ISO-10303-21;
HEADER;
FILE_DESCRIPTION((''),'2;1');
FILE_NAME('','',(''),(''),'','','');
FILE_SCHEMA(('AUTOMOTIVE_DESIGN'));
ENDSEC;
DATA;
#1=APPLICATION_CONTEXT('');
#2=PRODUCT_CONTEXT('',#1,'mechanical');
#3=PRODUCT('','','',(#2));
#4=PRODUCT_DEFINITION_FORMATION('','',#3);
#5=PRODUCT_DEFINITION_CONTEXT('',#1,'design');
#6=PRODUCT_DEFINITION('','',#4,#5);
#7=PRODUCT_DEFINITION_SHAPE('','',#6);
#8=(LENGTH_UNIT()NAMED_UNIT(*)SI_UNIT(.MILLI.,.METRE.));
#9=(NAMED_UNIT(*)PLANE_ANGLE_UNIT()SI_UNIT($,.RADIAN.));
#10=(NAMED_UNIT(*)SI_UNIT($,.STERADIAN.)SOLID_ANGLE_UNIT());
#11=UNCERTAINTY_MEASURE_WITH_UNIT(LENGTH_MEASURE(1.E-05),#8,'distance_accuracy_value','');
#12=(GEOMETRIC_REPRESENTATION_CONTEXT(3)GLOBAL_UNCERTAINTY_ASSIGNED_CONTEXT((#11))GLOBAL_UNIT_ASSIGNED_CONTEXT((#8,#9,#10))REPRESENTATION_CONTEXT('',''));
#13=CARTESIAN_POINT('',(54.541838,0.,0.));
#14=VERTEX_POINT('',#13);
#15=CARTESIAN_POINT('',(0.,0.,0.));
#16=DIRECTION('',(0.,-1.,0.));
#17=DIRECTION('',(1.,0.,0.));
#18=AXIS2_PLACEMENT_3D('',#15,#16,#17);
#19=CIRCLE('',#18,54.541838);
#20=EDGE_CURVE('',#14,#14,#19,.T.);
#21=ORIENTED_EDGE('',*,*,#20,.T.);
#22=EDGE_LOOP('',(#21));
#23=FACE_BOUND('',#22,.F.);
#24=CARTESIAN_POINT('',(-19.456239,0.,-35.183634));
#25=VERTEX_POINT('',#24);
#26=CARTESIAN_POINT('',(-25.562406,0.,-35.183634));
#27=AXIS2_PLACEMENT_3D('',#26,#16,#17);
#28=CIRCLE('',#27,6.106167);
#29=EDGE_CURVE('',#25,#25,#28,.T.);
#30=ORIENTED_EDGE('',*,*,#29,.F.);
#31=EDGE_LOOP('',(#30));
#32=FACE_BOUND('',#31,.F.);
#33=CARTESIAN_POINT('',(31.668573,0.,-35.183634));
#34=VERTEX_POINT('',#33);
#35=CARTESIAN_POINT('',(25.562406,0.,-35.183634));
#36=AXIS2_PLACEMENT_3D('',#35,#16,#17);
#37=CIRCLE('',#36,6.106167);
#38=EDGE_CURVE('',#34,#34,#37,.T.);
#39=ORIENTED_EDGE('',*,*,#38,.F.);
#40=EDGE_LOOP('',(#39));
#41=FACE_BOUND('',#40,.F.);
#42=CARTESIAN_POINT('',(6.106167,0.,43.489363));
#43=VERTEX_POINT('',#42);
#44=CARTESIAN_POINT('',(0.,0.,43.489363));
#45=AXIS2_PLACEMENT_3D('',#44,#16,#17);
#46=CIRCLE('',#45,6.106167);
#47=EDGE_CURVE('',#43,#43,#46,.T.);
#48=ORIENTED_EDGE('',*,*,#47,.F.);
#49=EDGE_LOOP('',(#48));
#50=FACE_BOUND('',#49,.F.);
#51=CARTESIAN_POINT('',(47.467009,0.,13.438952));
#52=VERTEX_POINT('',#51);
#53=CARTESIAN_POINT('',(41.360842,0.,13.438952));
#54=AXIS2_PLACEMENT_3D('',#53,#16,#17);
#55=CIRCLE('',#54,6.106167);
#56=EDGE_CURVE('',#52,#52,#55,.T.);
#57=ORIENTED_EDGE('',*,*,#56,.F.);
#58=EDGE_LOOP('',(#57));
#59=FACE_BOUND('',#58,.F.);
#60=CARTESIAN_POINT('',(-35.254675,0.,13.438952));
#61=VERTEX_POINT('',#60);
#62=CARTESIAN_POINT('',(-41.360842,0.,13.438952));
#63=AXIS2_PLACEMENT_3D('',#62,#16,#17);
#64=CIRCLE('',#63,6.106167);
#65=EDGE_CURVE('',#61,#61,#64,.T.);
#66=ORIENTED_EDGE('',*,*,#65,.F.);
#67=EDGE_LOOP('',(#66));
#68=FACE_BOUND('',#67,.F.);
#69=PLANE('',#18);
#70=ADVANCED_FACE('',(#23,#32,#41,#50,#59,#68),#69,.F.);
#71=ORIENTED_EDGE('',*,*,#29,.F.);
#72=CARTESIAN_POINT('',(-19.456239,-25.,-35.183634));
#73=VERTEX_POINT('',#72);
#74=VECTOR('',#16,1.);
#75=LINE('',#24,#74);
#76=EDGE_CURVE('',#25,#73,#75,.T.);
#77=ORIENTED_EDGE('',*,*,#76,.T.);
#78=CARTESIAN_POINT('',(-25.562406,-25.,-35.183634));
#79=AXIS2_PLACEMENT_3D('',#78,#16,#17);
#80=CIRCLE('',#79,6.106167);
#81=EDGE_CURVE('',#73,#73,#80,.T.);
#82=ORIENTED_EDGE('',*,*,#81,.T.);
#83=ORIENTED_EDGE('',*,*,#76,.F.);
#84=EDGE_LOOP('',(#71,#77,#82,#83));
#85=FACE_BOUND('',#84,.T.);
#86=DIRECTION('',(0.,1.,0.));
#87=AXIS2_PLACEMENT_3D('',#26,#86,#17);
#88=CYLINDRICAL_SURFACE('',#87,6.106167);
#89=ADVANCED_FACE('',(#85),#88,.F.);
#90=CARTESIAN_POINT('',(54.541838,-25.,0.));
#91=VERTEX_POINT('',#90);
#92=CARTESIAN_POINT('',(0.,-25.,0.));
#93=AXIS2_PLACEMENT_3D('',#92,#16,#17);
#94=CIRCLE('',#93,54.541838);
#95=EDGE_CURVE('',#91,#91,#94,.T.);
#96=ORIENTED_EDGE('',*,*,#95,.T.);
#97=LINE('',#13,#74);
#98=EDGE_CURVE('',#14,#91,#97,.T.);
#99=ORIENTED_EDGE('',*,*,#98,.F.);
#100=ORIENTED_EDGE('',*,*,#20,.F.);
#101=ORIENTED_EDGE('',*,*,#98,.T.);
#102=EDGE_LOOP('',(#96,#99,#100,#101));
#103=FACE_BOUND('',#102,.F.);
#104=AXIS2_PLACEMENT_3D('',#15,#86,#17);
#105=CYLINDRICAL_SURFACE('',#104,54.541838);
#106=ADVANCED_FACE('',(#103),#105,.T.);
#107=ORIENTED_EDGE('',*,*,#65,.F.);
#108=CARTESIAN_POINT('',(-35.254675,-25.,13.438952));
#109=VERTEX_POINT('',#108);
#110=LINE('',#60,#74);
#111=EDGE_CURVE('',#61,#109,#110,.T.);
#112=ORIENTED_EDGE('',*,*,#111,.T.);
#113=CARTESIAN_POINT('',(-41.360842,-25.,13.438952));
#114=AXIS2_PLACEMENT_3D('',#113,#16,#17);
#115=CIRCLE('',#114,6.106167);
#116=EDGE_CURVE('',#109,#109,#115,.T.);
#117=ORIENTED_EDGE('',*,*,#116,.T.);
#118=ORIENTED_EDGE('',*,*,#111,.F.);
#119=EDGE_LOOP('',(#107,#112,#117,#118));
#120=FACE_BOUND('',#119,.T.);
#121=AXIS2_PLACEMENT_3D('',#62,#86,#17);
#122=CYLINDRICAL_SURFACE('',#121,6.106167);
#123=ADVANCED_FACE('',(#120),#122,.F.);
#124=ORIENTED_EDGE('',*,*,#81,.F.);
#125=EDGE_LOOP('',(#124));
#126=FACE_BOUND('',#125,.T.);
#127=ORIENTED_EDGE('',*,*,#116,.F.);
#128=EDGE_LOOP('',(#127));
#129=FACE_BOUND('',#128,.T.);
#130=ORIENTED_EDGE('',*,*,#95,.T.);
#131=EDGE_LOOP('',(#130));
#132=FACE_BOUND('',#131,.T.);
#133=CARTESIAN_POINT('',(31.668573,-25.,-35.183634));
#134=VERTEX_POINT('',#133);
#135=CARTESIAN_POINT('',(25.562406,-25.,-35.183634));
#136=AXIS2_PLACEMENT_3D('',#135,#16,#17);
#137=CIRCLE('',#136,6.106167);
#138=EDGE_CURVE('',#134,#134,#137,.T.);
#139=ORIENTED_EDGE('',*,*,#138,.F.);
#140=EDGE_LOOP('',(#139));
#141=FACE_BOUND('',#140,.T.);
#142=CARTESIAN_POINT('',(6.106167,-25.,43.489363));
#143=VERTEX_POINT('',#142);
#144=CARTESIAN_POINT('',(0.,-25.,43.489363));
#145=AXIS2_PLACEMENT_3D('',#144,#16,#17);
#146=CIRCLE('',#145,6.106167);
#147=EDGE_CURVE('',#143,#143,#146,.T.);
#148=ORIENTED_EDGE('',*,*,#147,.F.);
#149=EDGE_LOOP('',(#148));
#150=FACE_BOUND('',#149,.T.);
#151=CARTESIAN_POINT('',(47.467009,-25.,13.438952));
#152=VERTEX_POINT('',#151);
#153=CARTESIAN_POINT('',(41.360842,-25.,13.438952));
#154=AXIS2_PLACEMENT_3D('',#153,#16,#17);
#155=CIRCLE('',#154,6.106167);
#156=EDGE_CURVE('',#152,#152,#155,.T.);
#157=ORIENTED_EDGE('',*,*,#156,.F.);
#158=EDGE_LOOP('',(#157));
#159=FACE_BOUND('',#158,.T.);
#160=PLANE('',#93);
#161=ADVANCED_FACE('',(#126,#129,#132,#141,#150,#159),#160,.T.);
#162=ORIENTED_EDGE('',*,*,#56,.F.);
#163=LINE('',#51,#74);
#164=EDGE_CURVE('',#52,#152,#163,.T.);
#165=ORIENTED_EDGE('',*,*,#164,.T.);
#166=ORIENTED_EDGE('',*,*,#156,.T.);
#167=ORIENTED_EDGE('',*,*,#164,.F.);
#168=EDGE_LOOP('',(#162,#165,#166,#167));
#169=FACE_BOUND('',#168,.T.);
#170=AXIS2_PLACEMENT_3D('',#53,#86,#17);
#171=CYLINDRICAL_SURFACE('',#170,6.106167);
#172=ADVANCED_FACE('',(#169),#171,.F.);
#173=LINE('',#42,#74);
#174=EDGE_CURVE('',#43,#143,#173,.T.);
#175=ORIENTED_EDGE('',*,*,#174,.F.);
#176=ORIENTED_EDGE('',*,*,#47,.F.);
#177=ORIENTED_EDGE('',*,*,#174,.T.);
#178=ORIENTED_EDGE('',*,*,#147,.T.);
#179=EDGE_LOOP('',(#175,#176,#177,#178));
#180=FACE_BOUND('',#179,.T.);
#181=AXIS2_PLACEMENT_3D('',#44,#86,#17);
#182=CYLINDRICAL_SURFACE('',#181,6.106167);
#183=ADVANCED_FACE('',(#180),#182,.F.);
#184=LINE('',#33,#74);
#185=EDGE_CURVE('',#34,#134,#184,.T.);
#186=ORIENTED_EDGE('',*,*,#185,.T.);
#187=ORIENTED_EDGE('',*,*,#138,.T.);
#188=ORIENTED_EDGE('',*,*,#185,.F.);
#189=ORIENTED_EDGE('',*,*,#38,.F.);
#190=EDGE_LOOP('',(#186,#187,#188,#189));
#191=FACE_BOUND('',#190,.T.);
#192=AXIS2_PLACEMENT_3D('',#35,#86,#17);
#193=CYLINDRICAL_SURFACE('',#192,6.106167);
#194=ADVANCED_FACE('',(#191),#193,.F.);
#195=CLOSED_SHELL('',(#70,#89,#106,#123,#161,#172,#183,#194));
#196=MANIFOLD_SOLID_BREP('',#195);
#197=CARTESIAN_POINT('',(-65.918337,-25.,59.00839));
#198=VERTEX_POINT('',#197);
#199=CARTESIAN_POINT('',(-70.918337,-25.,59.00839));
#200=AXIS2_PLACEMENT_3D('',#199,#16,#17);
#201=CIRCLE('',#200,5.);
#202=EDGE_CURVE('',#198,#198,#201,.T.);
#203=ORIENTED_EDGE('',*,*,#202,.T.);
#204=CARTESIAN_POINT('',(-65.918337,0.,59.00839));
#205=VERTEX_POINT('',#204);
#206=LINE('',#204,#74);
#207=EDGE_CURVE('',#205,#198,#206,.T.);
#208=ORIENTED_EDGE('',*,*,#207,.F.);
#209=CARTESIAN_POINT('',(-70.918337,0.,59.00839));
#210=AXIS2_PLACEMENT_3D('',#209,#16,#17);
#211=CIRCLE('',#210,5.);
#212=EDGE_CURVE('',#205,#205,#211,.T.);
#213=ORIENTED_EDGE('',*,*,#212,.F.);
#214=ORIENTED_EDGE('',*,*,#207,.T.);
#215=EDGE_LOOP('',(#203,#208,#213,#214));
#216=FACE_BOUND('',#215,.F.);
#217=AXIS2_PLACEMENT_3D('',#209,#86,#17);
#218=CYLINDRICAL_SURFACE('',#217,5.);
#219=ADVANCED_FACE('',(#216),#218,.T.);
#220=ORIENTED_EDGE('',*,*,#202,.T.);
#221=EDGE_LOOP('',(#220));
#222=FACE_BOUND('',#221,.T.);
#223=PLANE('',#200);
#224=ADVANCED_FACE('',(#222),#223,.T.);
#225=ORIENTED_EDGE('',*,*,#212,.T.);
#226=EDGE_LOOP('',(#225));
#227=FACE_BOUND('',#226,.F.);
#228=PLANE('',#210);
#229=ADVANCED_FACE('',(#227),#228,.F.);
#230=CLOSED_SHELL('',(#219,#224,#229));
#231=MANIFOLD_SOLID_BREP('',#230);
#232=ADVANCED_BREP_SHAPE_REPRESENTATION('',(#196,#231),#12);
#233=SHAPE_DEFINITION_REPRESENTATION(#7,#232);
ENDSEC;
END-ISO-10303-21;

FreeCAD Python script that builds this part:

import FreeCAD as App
import Part
import Sketcher
from FreeCAD import Vector
Q = App.Units.Quantity

doc = App.newDocument("Part")
body = doc.addObject("PartDesign::Body", "Body")

# Sketch on XZ plane
sketch1 = body.newObject("Sketcher::SketchObject", "Sketch")
sketch1.AttachmentSupport = (doc.getObject("XZ_Plane"), [""])
sketch1.MapMode = "FlatFace"
sketch1.addGeometry([
    Part.Circle(Vector(0, 0, 0), Vector(0, 0, 1), 54.541838),  # 0
    Part.Circle(Vector(-25.562406, -35.183634, 0), Vector(0, 0, 1), 6.106167),  # 1
    Part.Circle(Vector(25.562406, -35.183634, 0), Vector(0, 0, 1), 6.106167),  # 2
    Part.Circle(Vector(-41.360842, 13.438952, 0), Vector(0, 0, 1), 6.106167),  # 3
    Part.Circle(Vector(41.360842, 13.438952, 0), Vector(0, 0, 1), 6.106167),  # 4
    Part.Circle(Vector(0, 43.489363, 0), Vector(0, 0, 1), 6.106167),  # 5
], False)
sketch1.addConstraint([
    Sketcher.Constraint("Coincident", 0, 3, -1, 1),
    Sketcher.Constraint("Equal", 1, 2),
    Sketcher.Constraint("Equal", 2, 3),
    Sketcher.Constraint("Equal", 3, 4),
    Sketcher.Constraint("Equal", 4, 5),
    Sketcher.Constraint("Symmetric", 1, 3, 2, 3, -2),
    Sketcher.Constraint("Symmetric", 3, 3, 4, 3, -2),
    Sketcher.Constraint("PointOnObject", 5, 3, -2),
    Sketcher.Constraint("Diameter", 0, Q("109.083676 mm")),
    Sketcher.Constraint("Diameter", 1, Q("12.212334 mm")),
    Sketcher.Constraint("DistanceX", 3, 3, -1, 1, Q("41.360842 mm")),
    Sketcher.Constraint("DistanceX", 3, 3, 2, 3, Q("66.923248 mm")),
    Sketcher.Constraint("DistanceY", 3, 3, 5, 3, Q("30.050411 mm")),
    Sketcher.Constraint("DistanceY", 1, 3, -1, 1, Q("35.183634 mm")),
    Sketcher.Constraint("DistanceY", -1, 1, 3, 3, Q("13.438952 mm")),
])
pad1 = body.newObject("PartDesign::Pad", "Pad")
pad1.Profile = sketch1
pad1.Length = 25
body2 = doc.addObject("PartDesign::Body", "Body001")

# Sketch on XZ plane
sketch2 = body2.newObject("Sketcher::SketchObject", "Sketch001")
sketch2.AttachmentSupport = (doc.getObject("XZ_Plane001"), [""])
sketch2.MapMode = "FlatFace"
sketch2.addGeometry(Part.Circle(Vector(-70.918337, 59.00839, 0), Vector(0, 0, 1), 5), False)
sketch2.addConstraint([
    Sketcher.Constraint("Diameter", 0, Q("10 mm")),
    Sketcher.Constraint("DistanceY", -1, 1, 0, 3, Q("59.00839 mm")),
    Sketcher.Constraint("DistanceX", 0, 3, -1, 1, Q("70.918337 mm")),
])
pad2 = body2.newObject("PartDesign::Pad", "Pad001")
pad2.Profile = sketch2
pad2.Length = 25

doc.recompute()
